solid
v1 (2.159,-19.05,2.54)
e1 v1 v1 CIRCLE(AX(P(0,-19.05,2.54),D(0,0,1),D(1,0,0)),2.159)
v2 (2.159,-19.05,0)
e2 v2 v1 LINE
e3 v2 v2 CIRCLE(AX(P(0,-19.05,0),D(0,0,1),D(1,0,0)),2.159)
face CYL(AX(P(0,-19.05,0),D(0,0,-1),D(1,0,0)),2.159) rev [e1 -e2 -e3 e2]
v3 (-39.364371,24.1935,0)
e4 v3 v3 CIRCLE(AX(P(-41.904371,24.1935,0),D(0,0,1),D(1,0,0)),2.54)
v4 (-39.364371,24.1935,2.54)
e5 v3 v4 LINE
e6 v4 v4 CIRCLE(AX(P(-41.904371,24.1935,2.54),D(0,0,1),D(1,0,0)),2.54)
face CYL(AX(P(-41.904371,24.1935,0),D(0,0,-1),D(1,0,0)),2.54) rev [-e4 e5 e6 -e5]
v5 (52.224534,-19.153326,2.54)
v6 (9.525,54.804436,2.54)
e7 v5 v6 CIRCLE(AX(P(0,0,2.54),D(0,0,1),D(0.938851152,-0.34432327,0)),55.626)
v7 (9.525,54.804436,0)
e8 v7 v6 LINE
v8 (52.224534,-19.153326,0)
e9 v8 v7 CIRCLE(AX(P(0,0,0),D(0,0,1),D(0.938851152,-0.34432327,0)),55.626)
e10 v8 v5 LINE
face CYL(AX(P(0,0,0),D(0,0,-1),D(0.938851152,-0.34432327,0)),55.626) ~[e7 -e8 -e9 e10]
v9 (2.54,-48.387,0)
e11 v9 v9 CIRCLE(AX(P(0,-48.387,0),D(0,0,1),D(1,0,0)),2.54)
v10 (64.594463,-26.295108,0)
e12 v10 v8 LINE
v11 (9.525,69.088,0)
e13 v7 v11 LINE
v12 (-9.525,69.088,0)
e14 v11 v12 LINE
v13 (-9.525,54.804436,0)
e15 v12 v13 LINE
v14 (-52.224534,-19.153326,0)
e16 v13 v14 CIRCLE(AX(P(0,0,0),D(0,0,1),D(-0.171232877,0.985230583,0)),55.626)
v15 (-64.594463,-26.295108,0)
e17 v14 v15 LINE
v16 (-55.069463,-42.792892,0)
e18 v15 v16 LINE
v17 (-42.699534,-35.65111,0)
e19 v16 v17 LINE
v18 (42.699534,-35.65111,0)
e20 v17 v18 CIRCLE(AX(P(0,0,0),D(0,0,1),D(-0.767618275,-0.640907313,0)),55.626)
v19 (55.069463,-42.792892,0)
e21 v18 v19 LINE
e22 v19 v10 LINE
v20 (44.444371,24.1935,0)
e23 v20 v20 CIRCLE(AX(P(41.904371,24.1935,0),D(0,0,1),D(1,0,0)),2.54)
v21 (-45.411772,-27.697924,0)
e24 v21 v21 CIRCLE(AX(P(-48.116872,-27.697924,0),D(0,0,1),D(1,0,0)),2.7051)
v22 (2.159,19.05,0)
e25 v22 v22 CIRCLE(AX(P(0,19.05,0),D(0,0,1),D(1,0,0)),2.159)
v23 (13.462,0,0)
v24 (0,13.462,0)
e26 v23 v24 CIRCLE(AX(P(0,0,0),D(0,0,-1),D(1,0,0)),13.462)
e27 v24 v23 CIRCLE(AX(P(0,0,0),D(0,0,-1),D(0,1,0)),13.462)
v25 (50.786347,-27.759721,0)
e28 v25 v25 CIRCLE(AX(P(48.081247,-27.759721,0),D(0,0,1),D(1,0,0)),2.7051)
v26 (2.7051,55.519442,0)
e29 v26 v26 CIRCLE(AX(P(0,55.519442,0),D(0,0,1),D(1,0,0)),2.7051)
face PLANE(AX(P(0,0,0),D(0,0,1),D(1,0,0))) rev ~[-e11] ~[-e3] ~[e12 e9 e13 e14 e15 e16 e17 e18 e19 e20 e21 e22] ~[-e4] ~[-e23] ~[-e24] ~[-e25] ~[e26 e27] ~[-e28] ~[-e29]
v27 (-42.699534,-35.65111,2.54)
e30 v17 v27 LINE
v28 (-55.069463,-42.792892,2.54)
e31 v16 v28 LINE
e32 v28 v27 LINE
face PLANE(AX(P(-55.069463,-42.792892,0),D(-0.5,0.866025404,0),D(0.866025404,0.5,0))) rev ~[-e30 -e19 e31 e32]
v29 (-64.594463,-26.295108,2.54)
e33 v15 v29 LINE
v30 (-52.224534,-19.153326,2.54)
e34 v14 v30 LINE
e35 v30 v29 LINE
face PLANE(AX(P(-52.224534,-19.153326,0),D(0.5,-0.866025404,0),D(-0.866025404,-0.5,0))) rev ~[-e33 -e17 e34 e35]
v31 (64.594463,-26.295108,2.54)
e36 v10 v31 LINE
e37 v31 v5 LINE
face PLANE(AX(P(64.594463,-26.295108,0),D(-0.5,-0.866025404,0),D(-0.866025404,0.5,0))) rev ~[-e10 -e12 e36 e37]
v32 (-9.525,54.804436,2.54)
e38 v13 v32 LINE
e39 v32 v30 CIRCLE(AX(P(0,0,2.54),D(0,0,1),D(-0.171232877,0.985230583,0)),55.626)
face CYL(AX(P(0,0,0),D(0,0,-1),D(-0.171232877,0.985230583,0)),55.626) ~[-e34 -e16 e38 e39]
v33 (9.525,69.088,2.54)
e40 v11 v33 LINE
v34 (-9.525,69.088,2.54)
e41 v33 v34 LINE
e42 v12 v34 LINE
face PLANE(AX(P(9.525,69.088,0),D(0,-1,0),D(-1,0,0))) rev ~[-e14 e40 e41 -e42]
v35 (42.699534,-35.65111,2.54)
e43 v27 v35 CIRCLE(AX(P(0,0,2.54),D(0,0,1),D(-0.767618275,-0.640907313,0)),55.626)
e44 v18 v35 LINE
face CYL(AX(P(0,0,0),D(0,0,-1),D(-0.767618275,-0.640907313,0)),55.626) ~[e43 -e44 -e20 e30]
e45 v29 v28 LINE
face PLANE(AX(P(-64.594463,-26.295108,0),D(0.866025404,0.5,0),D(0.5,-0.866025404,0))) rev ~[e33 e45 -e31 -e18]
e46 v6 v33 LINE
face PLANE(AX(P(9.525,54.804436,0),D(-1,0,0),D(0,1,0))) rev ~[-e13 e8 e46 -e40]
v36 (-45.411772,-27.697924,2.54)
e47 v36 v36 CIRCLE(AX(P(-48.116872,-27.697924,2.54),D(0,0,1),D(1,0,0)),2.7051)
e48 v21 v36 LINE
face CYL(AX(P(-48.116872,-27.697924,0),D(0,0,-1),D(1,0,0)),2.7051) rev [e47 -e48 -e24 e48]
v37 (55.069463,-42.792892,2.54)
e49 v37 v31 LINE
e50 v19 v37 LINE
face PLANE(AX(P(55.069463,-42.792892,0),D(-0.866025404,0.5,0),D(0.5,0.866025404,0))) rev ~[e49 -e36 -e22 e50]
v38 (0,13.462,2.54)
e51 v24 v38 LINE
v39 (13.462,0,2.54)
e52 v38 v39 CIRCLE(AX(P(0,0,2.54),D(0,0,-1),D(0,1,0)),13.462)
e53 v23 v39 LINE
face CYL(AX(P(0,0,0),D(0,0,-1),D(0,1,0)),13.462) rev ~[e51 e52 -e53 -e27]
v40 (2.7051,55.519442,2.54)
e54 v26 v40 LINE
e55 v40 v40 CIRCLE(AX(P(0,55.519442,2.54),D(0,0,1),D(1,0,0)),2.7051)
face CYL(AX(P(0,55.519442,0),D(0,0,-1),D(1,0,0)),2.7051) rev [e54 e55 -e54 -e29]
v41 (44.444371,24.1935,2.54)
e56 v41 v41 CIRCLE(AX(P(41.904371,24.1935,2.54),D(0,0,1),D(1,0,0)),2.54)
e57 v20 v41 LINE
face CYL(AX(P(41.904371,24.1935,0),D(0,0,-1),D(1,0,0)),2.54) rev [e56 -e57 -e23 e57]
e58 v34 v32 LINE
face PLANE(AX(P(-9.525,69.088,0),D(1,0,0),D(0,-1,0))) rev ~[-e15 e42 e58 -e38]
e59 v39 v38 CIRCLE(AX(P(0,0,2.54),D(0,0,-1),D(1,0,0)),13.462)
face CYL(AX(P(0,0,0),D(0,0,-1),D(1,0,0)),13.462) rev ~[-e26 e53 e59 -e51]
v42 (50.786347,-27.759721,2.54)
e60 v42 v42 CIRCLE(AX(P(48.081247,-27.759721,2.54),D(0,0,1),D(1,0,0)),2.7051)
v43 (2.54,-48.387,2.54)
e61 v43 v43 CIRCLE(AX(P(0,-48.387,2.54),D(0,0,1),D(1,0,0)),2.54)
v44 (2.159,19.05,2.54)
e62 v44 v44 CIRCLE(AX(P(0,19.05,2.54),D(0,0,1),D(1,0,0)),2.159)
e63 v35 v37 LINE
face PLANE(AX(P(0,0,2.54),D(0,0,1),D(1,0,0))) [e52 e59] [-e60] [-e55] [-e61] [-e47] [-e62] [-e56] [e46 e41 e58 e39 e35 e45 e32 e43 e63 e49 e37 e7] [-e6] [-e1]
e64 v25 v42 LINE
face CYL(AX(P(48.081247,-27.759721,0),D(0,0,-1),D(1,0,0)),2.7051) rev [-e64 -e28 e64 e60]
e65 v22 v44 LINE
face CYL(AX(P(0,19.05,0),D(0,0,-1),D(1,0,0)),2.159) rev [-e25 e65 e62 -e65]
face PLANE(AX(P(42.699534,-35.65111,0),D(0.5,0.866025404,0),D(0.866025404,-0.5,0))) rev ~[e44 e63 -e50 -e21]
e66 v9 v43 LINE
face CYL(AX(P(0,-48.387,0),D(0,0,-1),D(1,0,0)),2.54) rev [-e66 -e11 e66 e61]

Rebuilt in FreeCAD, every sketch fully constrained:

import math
import FreeCAD as App
import Part
import Sketcher

V = App.Vector
Q = App.Units.Quantity

doc = App.newDocument("Part")
body = doc.addObject("PartDesign::Body", "Body")

# Sketch on XY plane
sketch1 = body.newObject("Sketcher::SketchObject", "Sketch")
sketch1.AttachmentSupport = (doc.getObject("XY_Plane"), [""])
sketch1.MapMode = "FlatFace"
sketch1.addGeometry([
    Part.LineSegment(V(-9.525, 69.088, 0), V(-9.525, 54.804436, 0)),  # 0
    Part.ArcOfCircle(Part.Circle(V(0, 0, 0), V(0, 0, 1), 55.626), math.radians(99.859509), math.radians(200.140491)),  # 1
    Part.LineSegment(V(-52.224534, -19.153326, 0), V(-64.594463, -26.295108, 0)),  # 2
    Part.LineSegment(V(-64.594463, -26.295108, 0), V(-55.069463, -42.792892, 0)),  # 3
    Part.LineSegment(V(-55.069463, -42.792892, 0), V(-42.699534, -35.65111, 0)),  # 4
    Part.ArcOfCircle(Part.Circle(V(0, 0, 0), V(0, 0, 1), 55.626), math.radians(-140.140491), math.radians(-39.859509)),  # 5
    Part.LineSegment(V(42.699534, -35.65111, 0), V(55.069463, -42.792892, 0)),  # 6
    Part.LineSegment(V(55.069463, -42.792892, 0), V(64.594463, -26.295108, 0)),  # 7
    Part.LineSegment(V(64.594463, -26.295108, 0), V(52.224534, -19.153326, 0)),  # 8
    Part.ArcOfCircle(Part.Circle(V(0, 0, 0), V(0, 0, 1), 55.626), math.radians(-20.140491), math.radians(80.140491)),  # 9
    Part.LineSegment(V(9.525, 54.804436, 0), V(9.525, 69.088, 0)),  # 10
    Part.LineSegment(V(9.525, 69.088, 0), V(-9.525, 69.088, 0)),  # 11
    Part.ArcOfCircle(Part.Circle(V(0, 0, 0), V(0, 0, 1), 13.462), math.radians(90), math.radians(360)),  # 12
    Part.ArcOfCircle(Part.Circle(V(0, 0, 0), V(0, 0, 1), 13.462), math.radians(0), math.radians(90)),  # 13
], False)
sketch1.addConstraint([
    Sketcher.Constraint("Coincident", 0, 2, 1, 1),
    Sketcher.Constraint("Coincident", 1, 2, 2, 1),
    Sketcher.Constraint("Coincident", 2, 2, 3, 1),
    Sketcher.Constraint("Coincident", 3, 2, 4, 1),
    Sketcher.Constraint("Coincident", 4, 2, 5, 1),
    Sketcher.Constraint("Coincident", 5, 2, 6, 1),
    Sketcher.Constraint("Coincident", 6, 2, 7, 1),
    Sketcher.Constraint("Coincident", 7, 2, 8, 1),
    Sketcher.Constraint("Coincident", 8, 2, 9, 1),
    Sketcher.Constraint("Coincident", 9, 2, 10, 1),
    Sketcher.Constraint("Coincident", 10, 2, 11, 1),
    Sketcher.Constraint("Coincident", 11, 2, 0, 1),
    Sketcher.Constraint("Tangent", 12, 1, 13, 2),
    Sketcher.Constraint("Coincident", 13, 1, 12, 2),
    Sketcher.Constraint("Vertical", 0),
    Sketcher.Constraint("Vertical", 10),
    Sketcher.Constraint("Horizontal", 11),
    Sketcher.Constraint("Coincident", 1, 3, -1, 1),
    Sketcher.Constraint("Coincident", 5, 3, -1, 1),
    Sketcher.Constraint("Coincident", 9, 3, -1, 1),
    Sketcher.Constraint("Coincident", 12, 3, -1, 1),
    Sketcher.Constraint("Equal", 1, 5),
    Sketcher.Constraint("Equal", 5, 9),
    Sketcher.Constraint("Symmetric", 3, 2, 6, 2, -2),
    Sketcher.Constraint("Symmetric", 2, 2, 7, 2, -2),
    Sketcher.Constraint("PointOnObject", 12, 1, -2),
    Sketcher.Constraint("PointOnObject", 13, 1, -1),
    Sketcher.Constraint("Perpendicular", 2, 3),
    Sketcher.Constraint("Perpendicular", 3, 4),
    Sketcher.Constraint("Perpendicular", 6, 7),
    Sketcher.Constraint("Perpendicular", 7, 8),
    Sketcher.Constraint("Horizontal", 0, 2, 9, 2),
    Sketcher.Constraint("Equal", 2, 4),
    Sketcher.Constraint("Radius", 1, Q("2.19 in")),
    Sketcher.Constraint("Radius", 12, Q("0.53 in")),
    Sketcher.Constraint("Angle", 2, Q("-150 deg")),
    Sketcher.Constraint("DistanceX", 11, 2, 11, 1, Q("0.75 in")),
    Sketcher.Constraint("Distance", 3, Q("0.75 in")),
    Sketcher.Constraint("DistanceY", -1, 1, 10, 2, Q("2.72 in")),
    Sketcher.Constraint("DistanceY", 2, 2, -1, 1, Q("26.295108 mm")),
])
pad1 = body.newObject("PartDesign::Pad", "Pad")
pad1.Profile = sketch1
pad1.Length = Q("0.1 in")

# Sketch on XY plane
sketch2 = body.newObject("Sketcher::SketchObject", "Sketch001")
sketch2.AttachmentSupport = (doc.getObject("XY_Plane"), [""])
sketch2.MapMode = "FlatFace"
sketch2.addGeometry([
    Part.Circle(V(0, 19.05, 0), V(0, 0, 1), 2.159),  # 0
    Part.Circle(V(0, -19.05, 0), V(0, 0, 1), 2.159),  # 1
    Part.Circle(V(0, 55.519442, 0), V(0, 0, 1), 2.7051),  # 2
    Part.Circle(V(-48.116872, -27.697924, 0), V(0, 0, 1), 2.7051),  # 3
    Part.Circle(V(48.081247, -27.759721, 0), V(0, 0, 1), 2.7051),  # 4
    Part.Circle(V(-41.904371, 24.1935, 0), V(0, 0, 1), 2.54),  # 5
    Part.Circle(V(41.904371, 24.1935, 0), V(0, 0, 1), 2.54),  # 6
    Part.Circle(V(0, -48.387, 0), V(0, 0, 1), 2.54),  # 7
], False)
sketch2.addConstraint([
    Sketcher.Constraint("Equal", 0, 1),
    Sketcher.Constraint("Equal", 2, 3),
    Sketcher.Constraint("Equal", 3, 4),
    Sketcher.Constraint("Equal", 5, 6),
    Sketcher.Constraint("Equal", 6, 7),
    Sketcher.Constraint("Symmetric", 0, 3, 1, 3, -1, 1),
    Sketcher.Constraint("Symmetric", 5, 3, 6, 3, -2),
    Sketcher.Constraint("PointOnObject", 0, 3, -2),
    Sketcher.Constraint("PointOnObject", 2, 3, -2),
    Sketcher.Constraint("PointOnObject", 7, 3, -2),
    Sketcher.Constraint("Diameter", 5, Q("0.2 in")),
    Sketcher.Constraint("Diameter", 0, Q("0.17 in")),
    Sketcher.Constraint("Diameter", 2, Q("0.213 in")),
    Sketcher.Constraint("DistanceY", 1, 3, 0, 3, Q("1.5 in")),
    Sketcher.Constraint("DistanceY", 7, 3, -1, 1, Q("1.905 in")),
    Sketcher.Constraint("DistanceY", -1, 1, 5, 3, Q("0.9525 in")),
    Sketcher.Constraint("DistanceX", 3, 3, 5, 3, Q("6.212501 mm")),
    Sketcher.Constraint("DistanceY", -1, 1, 2, 3, Q("55.519442 mm")),
    Sketcher.Constraint("DistanceY", 4, 3, -1, 1, Q("27.759721 mm")),
    Sketcher.Constraint("DistanceX", 5, 3, -1, 1, Q("41.904371 mm")),
    Sketcher.Constraint("DistanceX", 3, 3, 4, 3, Q("96.198119 mm")),
    Sketcher.Constraint("DistanceY", 3, 3, -1, 1, Q("27.697924 mm")),
])
pocket1 = body.newObject("PartDesign::Pocket", "Pocket")
pocket1.Profile = sketch2
pocket1.Length = Q("0.1 in")
pocket1.Reversed = True

doc.recompute()
